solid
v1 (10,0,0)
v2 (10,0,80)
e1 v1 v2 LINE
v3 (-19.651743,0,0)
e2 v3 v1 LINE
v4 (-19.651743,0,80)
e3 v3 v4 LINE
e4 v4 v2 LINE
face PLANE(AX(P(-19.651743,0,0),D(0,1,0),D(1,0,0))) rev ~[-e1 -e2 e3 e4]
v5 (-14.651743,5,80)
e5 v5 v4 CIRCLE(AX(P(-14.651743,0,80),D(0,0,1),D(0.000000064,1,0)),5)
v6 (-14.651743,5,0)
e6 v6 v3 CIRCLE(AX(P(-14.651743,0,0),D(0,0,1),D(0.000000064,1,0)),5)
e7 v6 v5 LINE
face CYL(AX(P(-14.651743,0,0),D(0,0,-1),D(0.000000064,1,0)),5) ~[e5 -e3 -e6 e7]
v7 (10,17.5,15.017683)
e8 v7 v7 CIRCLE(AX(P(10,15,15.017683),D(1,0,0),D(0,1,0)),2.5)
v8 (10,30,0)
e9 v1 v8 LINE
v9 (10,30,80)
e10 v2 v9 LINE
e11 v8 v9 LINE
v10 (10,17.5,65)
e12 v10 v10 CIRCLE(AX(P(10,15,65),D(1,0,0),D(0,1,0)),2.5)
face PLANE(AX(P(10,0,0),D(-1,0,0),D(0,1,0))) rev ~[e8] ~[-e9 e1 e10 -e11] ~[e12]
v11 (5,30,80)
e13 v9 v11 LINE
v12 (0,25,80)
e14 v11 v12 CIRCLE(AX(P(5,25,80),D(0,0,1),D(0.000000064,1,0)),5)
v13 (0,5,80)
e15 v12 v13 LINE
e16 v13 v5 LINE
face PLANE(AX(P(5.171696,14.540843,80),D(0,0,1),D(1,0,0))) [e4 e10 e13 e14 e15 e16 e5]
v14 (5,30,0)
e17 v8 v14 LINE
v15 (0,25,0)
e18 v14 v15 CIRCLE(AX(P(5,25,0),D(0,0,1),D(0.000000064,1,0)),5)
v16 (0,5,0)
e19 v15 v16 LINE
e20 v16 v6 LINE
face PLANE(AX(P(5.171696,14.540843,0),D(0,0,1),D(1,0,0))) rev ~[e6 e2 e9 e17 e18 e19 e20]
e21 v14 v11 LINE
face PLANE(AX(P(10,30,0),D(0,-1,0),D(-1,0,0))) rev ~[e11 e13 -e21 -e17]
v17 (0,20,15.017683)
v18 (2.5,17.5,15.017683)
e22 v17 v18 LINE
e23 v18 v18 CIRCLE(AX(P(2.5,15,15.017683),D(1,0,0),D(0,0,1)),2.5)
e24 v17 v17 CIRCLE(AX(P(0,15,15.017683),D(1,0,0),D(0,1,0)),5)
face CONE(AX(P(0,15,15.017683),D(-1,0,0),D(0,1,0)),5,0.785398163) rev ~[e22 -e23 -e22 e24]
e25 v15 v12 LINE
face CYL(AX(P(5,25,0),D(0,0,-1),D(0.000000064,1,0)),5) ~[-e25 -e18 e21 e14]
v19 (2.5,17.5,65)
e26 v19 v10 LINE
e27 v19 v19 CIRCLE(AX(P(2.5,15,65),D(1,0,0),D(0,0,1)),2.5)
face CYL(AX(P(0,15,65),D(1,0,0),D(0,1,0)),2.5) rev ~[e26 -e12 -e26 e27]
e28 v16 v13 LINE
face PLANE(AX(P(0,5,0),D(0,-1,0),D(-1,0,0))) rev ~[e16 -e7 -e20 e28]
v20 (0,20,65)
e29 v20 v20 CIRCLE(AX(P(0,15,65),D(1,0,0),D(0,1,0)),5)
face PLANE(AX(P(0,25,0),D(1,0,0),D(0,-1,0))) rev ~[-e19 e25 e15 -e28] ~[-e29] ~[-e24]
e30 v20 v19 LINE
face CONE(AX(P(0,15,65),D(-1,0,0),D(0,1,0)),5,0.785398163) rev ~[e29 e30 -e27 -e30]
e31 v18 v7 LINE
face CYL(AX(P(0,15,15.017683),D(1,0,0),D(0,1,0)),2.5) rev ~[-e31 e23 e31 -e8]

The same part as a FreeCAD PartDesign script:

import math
import FreeCAD as App
import Part
import Sketcher

V = App.Vector
Q = App.Units.Quantity

doc = App.newDocument("Part")
params = doc.addObject("Spreadsheet::Sheet", "Params")
for row, (alias, value) in enumerate([
    ("sketch1_radius", "5 mm"),
    ("sketch1_width", "5 mm"),
    ("sketch1_height", "30 mm"),
    ("pad1_length", "80 mm"),
    ("sketch2_diameter", "5 mm"),
    ("hole_diameter", "5 mm"),
    ("hole_csink_diameter", "10 mm"),
], start=1):
    params.set(f"A{row}", alias)
    params.set(f"B{row}", "=" + value)
    params.setAlias(f"B{row}", alias)

body = doc.addObject("PartDesign::Body", "Body")

# Sketch on XY plane
sketch1 = doc.addObject("Sketcher::SketchObject", "Sketch")
body.addObject(sketch1)
sketch1.AttachmentSupport = (doc.XY_Plane, [""])
sketch1.MapMode = "FlatFace"
sketch1.addGeometry([
    Part.LineSegment(V(10, 0, 0), V(10, 30, 0)),  # 0
    Part.LineSegment(V(10, 30, 0), V(5, 30, 0)),  # 1
    Part.ArcOfCircle(Part.Circle(V(5, 25, 0), V(0, 0, 1), 5), math.radians(90), math.radians(180)),  # 2
    Part.LineSegment(V(0, 25, 0), V(0, 5, 0)),  # 3
    Part.LineSegment(V(0, 5, 0), V(-14.7, 5, 0)),  # 4
    Part.ArcOfCircle(Part.Circle(V(-14.7, 0, 0), V(0, 0, 1), 5), math.radians(90), math.radians(180)),  # 5
    Part.LineSegment(V(-19.7, 0, 0), V(10, 0, 0)),  # 6
], False)
sketch1.addConstraint([
    Sketcher.Constraint("Coincident", 0, 2, 1, 1),
    Sketcher.Constraint("Tangent", 1, 2, 2, 1),
    Sketcher.Constraint("Tangent", 2, 2, 3, 1),
    Sketcher.Constraint("Coincident", 3, 2, 4, 1),
    Sketcher.Constraint("Tangent", 4, 2, 5, 1),
    Sketcher.Constraint("Coincident", 5, 2, 6, 1),
    Sketcher.Constraint("Coincident", 6, 2, 0, 1),
    Sketcher.Constraint("Vertical", 0),
    Sketcher.Constraint("Horizontal", 1),
    Sketcher.Constraint("Vertical", 3),
    Sketcher.Constraint("Horizontal", 4),
    Sketcher.Constraint("Horizontal", 6),
    Sketcher.Constraint("Equal", 2, 5),
    Sketcher.Constraint("PointOnObject", 5, 3, -1),
    Sketcher.Constraint("PointOnObject", 2, 2, -2),
    Sketcher.Constraint("PointOnObject", 5, 2, -1),
    Sketcher.Constraint("Radius", 2, Q("5 mm")),
    Sketcher.Constraint("DistanceX", 1, 2, 1, 1, Q("5 mm")),
    Sketcher.Constraint("DistanceY", 0, 1, 0, 2, Q("30 mm")),
    Sketcher.Constraint("DistanceX", 4, 2, 4, 1, Q("14.651743 mm")),
])
sketch1.setExpression("Constraints[16]", "Params.sketch1_radius")
sketch1.setExpression("Constraints[17]", "Params.sketch1_width")
sketch1.setExpression("Constraints[18]", "Params.sketch1_height")
pad1 = doc.addObject("PartDesign::Pad", "Pad")
body.addObject(pad1)
pad1.Profile = sketch1
pad1.setExpression("Length", "Params.pad1_length")

# Sketch on YZ plane
sketch2 = doc.addObject("Sketcher::SketchObject", "Sketch001")
body.addObject(sketch2)
sketch2.AttachmentSupport = (doc.YZ_Plane, [""])
sketch2.MapMode = "FlatFace"
sketch2.addGeometry([
    Part.Circle(V(15, 15, 0), V(0, 0, 1), 2.5),
    Part.Circle(V(15, 65, 0), V(0, 0, 1), 2.5),
], False)
sketch2.addConstraint([
    Sketcher.Constraint("Equal", 0, 1),
    Sketcher.Constraint("Vertical", 0, 3, 1, 3),
    Sketcher.Constraint("Diameter", 0, Q("5 mm")),
    Sketcher.Constraint("DistanceX", -1, 1, 0, 3, Q("15 mm")),
    Sketcher.Constraint("DistanceY", -1, 1, 1, 3, Q("65 mm")),
    Sketcher.Constraint("DistanceY", -1, 1, 0, 3, Q("15.017683 mm")),
])
sketch2.setExpression("Constraints[2]", "Params.sketch2_diameter")
doc.recompute()
hole = doc.addObject("PartDesign::Hole", "Hole")
body.addObject(hole)
hole.Profile = sketch2
hole.ThreadType = "None"
hole.setExpression("Diameter", "Params.hole_diameter")
hole.DepthType = "ThroughAll"
hole.HoleCutType = "Countersink"
hole.setExpression("HoleCutDiameter", "Params.hole_csink_diameter")
hole.HoleCutCountersinkAngle = 90
hole.Reversed = True

doc.recompute()
